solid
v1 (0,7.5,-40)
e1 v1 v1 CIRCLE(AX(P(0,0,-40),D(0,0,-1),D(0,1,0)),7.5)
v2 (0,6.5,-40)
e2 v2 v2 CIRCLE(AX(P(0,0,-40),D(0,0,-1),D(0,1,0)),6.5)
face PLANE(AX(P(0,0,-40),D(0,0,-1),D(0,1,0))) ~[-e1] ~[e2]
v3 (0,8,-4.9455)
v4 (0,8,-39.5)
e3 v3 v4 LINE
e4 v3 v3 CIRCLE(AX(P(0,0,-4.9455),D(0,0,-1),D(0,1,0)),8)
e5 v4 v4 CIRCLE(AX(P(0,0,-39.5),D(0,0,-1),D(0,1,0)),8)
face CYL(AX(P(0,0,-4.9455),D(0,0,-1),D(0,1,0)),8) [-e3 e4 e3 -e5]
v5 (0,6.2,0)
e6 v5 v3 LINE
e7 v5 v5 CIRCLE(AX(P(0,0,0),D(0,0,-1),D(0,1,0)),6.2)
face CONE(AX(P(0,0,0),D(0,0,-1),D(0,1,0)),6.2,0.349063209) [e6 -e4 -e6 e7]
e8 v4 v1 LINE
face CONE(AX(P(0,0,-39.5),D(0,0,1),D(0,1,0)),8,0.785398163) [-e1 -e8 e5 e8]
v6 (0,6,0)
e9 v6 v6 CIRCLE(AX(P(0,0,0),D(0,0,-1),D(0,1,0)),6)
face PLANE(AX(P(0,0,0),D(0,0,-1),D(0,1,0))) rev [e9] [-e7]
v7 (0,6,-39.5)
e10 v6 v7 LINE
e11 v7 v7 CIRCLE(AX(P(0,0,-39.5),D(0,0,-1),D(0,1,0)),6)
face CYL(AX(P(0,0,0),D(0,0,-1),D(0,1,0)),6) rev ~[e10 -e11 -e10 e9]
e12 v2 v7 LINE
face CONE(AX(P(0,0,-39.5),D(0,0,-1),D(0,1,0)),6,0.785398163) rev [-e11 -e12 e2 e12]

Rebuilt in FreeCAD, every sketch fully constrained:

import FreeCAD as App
import Part
import Sketcher

V = App.Vector
Q = App.Units.Quantity


def edges_at(feature, points):
    """Names of the edges that pass closest to the given points."""
    edges = feature.Shape.Edges
    near = lambda p: min(range(len(edges)), key=lambda i: edges[i].distToShape(Part.Vertex(*p))[0])
    return sorted({f"Edge{near(p) + 1}" for p in points})

doc = App.newDocument("Part")
body = doc.addObject("PartDesign::Body", "Body")

# Sketch on YZ plane
sketch1 = body.newObject("Sketcher::SketchObject", "Sketch")
sketch1.AttachmentSupport = (doc.getObject("YZ_Plane"), [""])
sketch1.MapMode = "FlatFace"
sketch1.addGeometry(Part.LineSegment(V(6.2, 0, 0), V(6, 0, 0)), False)
sketch1.addGeometry(Part.LineSegment(V(6, 0, 0), V(6, -40, 0)), False)
sketch1.addGeometry(Part.LineSegment(V(6, -40, 0), V(8, -40, 0)), False)
sketch1.addGeometry(Part.LineSegment(V(8, -40, 0), V(8, -4.95, 0)), False)
sketch1.addGeometry(Part.LineSegment(V(8, -4.95, 0), V(6.2, 0, 0)), False)
sketch1.addConstraint(Sketcher.Constraint("Coincident", 0, 2, 1, 1))
sketch1.addConstraint(Sketcher.Constraint("Coincident", 1, 2, 2, 1))
sketch1.addConstraint(Sketcher.Constraint("Coincident", 2, 2, 3, 1))
sketch1.addConstraint(Sketcher.Constraint("Coincident", 3, 2, 4, 1))
sketch1.addConstraint(Sketcher.Constraint("Coincident", 4, 2, 0, 1))
sketch1.addConstraint(Sketcher.Constraint("Horizontal", 0))
sketch1.addConstraint(Sketcher.Constraint("Vertical", 1))
sketch1.addConstraint(Sketcher.Constraint("Horizontal", 2))
sketch1.addConstraint(Sketcher.Constraint("Vertical", 3))
sketch1.addConstraint(Sketcher.Constraint("PointOnObject", 0, 2, -1))
sketch1.addConstraint(Sketcher.Constraint("DistanceX", 2, 1, 2, 2, Q("2 mm")))
sketch1.addConstraint(Sketcher.Constraint("DistanceY", 1, 2, 1, 1, Q("40 mm")))
sketch1.addConstraint(Sketcher.Constraint("DistanceX", 0, 2, 0, 1, Q("0.2 mm")))
sketch1.addConstraint(Sketcher.Constraint("Angle", 4, Q("109.9998 deg")))
sketch1.addConstraint(Sketcher.Constraint("DistanceX", -1, 1, 0, 2, Q("6 mm")))
revolution = body.newObject("PartDesign::Revolution", "Revolution")
revolution.Profile = sketch1
revolution.ReferenceAxis = (sketch1, ["V_Axis"])
revolution.Angle = 360
doc.recompute()

chamfer = body.newObject("PartDesign::Chamfer", "Chamfer")
chamfer.Base = (revolution, edges_at(revolution, [(0, -6, -40), (0, -8, -40)]))
chamfer.Size = 0.5

doc.recompute()
